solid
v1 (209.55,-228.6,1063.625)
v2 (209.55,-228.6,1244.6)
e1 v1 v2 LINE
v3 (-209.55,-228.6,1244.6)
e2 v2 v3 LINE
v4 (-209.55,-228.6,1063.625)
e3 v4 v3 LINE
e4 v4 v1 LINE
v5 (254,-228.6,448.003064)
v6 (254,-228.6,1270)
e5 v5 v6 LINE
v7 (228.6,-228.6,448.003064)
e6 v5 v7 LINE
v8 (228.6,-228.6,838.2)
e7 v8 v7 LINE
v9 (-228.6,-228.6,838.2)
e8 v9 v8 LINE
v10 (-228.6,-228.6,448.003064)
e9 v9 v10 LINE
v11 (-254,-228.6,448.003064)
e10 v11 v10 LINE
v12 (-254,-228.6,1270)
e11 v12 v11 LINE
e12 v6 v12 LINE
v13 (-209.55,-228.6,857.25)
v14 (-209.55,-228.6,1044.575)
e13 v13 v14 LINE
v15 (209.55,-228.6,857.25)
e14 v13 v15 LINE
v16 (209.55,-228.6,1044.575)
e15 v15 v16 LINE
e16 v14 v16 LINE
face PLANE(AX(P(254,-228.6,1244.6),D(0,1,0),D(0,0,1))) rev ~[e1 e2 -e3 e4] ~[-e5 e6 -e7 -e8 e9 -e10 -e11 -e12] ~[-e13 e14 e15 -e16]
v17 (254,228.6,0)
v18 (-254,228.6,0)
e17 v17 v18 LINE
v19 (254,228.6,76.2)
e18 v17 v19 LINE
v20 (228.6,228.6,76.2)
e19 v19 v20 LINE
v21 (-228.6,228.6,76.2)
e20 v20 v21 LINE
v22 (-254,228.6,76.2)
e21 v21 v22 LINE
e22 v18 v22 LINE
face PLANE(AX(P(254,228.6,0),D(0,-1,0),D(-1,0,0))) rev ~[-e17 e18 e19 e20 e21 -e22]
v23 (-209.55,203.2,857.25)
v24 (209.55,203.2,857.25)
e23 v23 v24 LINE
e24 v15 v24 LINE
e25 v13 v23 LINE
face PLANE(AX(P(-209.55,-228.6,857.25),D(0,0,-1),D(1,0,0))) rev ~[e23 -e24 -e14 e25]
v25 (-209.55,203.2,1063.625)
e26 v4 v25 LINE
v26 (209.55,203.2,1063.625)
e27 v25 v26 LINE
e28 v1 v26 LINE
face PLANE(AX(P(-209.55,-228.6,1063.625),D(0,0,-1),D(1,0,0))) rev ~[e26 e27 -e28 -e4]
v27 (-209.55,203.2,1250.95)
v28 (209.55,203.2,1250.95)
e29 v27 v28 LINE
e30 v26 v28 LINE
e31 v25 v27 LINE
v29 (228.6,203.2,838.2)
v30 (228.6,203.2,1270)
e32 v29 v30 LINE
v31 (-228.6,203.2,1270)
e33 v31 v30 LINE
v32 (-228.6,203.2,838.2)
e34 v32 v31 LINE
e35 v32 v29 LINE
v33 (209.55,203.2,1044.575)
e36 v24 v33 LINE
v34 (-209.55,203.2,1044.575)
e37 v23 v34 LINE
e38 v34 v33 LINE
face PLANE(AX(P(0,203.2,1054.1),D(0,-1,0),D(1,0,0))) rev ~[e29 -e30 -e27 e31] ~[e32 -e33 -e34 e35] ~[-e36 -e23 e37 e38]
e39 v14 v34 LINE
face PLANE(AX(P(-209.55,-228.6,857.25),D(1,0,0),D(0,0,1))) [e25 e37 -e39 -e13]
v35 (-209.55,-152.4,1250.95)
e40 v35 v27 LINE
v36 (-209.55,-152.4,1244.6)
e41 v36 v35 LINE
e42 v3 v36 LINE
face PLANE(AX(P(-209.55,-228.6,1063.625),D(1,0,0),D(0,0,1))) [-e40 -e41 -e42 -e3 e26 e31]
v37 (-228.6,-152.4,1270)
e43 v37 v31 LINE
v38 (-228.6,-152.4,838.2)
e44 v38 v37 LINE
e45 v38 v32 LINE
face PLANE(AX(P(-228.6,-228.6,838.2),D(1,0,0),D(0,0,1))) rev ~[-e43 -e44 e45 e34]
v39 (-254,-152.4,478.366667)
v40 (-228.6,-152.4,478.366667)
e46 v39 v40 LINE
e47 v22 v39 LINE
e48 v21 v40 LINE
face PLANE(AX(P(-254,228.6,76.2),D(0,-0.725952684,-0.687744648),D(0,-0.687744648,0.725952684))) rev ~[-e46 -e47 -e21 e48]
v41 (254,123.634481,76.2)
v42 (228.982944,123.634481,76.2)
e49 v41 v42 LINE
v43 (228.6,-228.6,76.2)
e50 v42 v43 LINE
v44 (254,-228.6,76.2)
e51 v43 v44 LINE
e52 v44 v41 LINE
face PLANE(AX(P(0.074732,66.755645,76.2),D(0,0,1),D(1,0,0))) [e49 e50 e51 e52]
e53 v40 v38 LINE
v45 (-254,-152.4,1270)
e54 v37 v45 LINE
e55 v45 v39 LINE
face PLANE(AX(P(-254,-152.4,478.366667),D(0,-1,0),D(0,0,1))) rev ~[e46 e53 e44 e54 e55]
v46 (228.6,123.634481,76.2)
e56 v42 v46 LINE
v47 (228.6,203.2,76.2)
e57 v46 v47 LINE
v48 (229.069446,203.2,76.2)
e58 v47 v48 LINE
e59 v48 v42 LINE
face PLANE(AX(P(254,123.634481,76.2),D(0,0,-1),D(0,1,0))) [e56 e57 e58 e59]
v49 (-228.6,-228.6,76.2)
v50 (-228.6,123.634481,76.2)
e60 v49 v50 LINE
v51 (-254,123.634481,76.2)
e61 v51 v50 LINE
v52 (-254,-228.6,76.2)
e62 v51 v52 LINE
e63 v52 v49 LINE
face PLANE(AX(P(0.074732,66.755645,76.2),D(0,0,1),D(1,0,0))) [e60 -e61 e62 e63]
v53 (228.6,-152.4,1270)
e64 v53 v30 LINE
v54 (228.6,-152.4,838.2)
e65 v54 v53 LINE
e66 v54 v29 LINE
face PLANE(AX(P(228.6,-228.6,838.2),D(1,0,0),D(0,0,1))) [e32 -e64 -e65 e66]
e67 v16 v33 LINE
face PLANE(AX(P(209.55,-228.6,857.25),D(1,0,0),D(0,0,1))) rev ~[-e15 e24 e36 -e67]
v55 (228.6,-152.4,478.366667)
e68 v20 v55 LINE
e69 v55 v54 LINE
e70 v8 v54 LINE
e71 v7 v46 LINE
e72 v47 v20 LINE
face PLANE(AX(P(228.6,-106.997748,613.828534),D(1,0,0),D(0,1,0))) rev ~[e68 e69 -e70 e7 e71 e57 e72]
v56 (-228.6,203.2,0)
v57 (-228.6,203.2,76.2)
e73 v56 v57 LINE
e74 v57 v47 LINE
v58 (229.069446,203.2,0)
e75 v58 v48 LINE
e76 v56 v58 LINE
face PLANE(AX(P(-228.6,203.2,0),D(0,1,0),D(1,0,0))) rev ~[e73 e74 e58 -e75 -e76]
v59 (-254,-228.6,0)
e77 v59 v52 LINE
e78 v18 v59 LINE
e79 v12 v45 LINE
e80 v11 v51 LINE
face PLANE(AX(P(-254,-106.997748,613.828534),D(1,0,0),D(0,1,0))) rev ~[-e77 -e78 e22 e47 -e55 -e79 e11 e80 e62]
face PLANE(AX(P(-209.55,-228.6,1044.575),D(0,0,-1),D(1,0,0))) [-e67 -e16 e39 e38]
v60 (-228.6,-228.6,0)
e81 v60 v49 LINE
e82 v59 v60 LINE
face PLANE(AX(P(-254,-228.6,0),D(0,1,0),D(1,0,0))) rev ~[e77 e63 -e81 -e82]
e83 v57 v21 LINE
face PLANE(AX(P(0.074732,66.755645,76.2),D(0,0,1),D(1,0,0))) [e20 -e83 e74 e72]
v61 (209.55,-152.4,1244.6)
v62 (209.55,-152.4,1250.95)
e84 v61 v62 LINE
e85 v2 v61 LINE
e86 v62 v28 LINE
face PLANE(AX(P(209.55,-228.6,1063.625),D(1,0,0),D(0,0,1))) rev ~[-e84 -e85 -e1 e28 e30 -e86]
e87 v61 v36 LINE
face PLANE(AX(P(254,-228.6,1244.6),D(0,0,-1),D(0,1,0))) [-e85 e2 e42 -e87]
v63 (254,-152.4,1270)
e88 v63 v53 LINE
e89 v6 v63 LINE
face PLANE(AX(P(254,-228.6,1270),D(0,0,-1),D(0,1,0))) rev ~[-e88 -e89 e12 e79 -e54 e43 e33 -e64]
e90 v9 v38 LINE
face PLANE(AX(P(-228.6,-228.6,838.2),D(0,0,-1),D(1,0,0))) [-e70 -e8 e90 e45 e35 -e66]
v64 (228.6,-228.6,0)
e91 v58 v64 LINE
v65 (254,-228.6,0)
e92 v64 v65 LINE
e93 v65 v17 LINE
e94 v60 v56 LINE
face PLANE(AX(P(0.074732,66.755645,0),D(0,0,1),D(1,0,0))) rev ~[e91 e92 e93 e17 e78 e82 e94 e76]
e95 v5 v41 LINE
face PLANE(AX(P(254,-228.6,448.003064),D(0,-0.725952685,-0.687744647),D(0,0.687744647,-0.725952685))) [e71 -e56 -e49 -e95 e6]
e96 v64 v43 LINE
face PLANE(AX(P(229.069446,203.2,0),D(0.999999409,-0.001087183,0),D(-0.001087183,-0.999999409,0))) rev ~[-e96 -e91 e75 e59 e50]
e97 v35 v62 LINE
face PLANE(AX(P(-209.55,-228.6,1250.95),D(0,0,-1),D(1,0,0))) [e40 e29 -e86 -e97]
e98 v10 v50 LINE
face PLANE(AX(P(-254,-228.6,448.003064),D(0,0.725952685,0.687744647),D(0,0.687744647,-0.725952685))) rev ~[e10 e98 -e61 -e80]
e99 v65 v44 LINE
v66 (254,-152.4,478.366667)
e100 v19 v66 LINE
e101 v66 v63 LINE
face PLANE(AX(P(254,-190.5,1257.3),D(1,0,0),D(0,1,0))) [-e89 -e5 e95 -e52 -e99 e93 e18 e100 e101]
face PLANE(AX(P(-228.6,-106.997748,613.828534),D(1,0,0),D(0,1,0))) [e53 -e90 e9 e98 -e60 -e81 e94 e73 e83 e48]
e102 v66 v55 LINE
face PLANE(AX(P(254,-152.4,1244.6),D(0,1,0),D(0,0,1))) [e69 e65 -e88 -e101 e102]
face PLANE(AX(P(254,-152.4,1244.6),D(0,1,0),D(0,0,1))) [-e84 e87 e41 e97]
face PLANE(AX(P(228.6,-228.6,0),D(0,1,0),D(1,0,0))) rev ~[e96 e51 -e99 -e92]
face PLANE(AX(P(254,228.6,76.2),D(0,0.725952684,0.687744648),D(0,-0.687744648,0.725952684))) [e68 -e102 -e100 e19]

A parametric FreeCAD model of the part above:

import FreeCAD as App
import Part
import Sketcher
Q = App.Units.Quantity

doc = App.newDocument("Part")
body = doc.addObject("PartDesign::Body", "Body")

# Sketch on XY plane
sketch1 = doc.addObject("Sketcher::SketchObject", "Sketch")
body.addObject(sketch1)
sketch1.AttachmentSupport = (doc.XY_Plane, [""])
sketch1.MapMode = "FlatFace"
sketch1.addGeometry(Part.LineSegment(App.Vector(229, -229, 0), App.Vector(254, -229, 0)), False)
sketch1.addGeometry(Part.LineSegment(App.Vector(254, -229, 0), App.Vector(254, 229, 0)), False)
sketch1.addGeometry(Part.LineSegment(App.Vector(254, 229, 0), App.Vector(-254, 229, 0)), False)
sketch1.addGeometry(Part.LineSegment(App.Vector(-254, 229, 0), App.Vector(-254, -229, 0)), False)
sketch1.addGeometry(Part.LineSegment(App.Vector(-254, -229, 0), App.Vector(-229, -229, 0)), False)
sketch1.addGeometry(Part.LineSegment(App.Vector(-229, -229, 0), App.Vector(-229, 203, 0)), False)
sketch1.addGeometry(Part.LineSegment(App.Vector(-229, 203, 0), App.Vector(229, 203, 0)), False)
sketch1.addGeometry(Part.LineSegment(App.Vector(229, 203, 0), App.Vector(229, -229, 0)), False)
sketch1.addConstraint(Sketcher.Constraint("Coincident", 0, 2, 1, 1))
sketch1.addConstraint(Sketcher.Constraint("Coincident", 1, 2, 2, 1))
sketch1.addConstraint(Sketcher.Constraint("Coincident", 2, 2, 3, 1))
sketch1.addConstraint(Sketcher.Constraint("Coincident", 3, 2, 4, 1))
sketch1.addConstraint(Sketcher.Constraint("Coincident", 4, 2, 5, 1))
sketch1.addConstraint(Sketcher.Constraint("Coincident", 5, 2, 6, 1))
sketch1.addConstraint(Sketcher.Constraint("Coincident", 6, 2, 7, 1))
sketch1.addConstraint(Sketcher.Constraint("Coincident", 7, 2, 0, 1))
sketch1.addConstraint(Sketcher.Constraint("Horizontal", 0))
sketch1.addConstraint(Sketcher.Constraint("Vertical", 1))
sketch1.addConstraint(Sketcher.Constraint("Horizontal", 2))
sketch1.addConstraint(Sketcher.Constraint("Vertical", 3))
sketch1.addConstraint(Sketcher.Constraint("Horizontal", 4))
sketch1.addConstraint(Sketcher.Constraint("Vertical", 5))
sketch1.addConstraint(Sketcher.Constraint("Horizontal", 6))
sketch1.addConstraint(Sketcher.Constraint("Symmetric", 0, 2, 2, 2, -1, 1))
sketch1.addConstraint(Sketcher.Constraint("Symmetric", 4, 2, 7, 2, -2))
sketch1.addConstraint(Sketcher.Constraint("DistanceX", 0, 1, 0, 2, Q("1 in")))
sketch1.addConstraint(Sketcher.Constraint("DistanceX", 2, 2, 2, 1, Q("20 in")))
sketch1.addConstraint(Sketcher.Constraint("DistanceY", 1, 1, 1, 2, Q("18 in")))
sketch1.addConstraint(Sketcher.Constraint("DistanceY", 5, 1, 5, 2, Q("17 in")))
sketch1.addConstraint(Sketcher.Constraint("DistanceX", 6, 1, 6, 2, Q("457.669446 mm")))
pad1 = doc.addObject("PartDesign::Pad", "Pad")
body.addObject(pad1)
pad1.Profile = sketch1
pad1.Length = Q("3 in")

# Sketch on YZ plane
sketch2 = doc.addObject("Sketcher::SketchObject", "Sketch001")
body.addObject(sketch2)
sketch2.AttachmentSupport = (doc.YZ_Plane, [""])
sketch2.MapMode = "FlatFace"
sketch2.AttachmentOffset = App.Placement(App.Vector(0, 0, 10 * 25.4), App.Rotation())
sketch2.addGeometry(Part.LineSegment(App.Vector(124, 76, 0), App.Vector(229, 76, 0)), False)
sketch2.addGeometry(Part.LineSegment(App.Vector(229, 76, 0), App.Vector(-152, 478, 0)), False)
sketch2.addGeometry(Part.LineSegment(App.Vector(-152, 478, 0), App.Vector(-152, 1245, 0)), False)
sketch2.addGeometry(Part.LineSegment(App.Vector(-152, 1245, 0), App.Vector(-229, 1245, 0)), False)
sketch2.addGeometry(Part.LineSegment(App.Vector(-229, 1245, 0), App.Vector(-229, 448, 0)), False)
sketch2.addGeometry(Part.LineSegment(App.Vector(-229, 448, 0), App.Vector(124, 76, 0)), False)
sketch2.addConstraint(Sketcher.Constraint("Coincident", 0, 2, 1, 1))
sketch2.addConstraint(Sketcher.Constraint("Coincident", 1, 2, 2, 1))
sketch2.addConstraint(Sketcher.Constraint("Coincident", 2, 2, 3, 1))
sketch2.addConstraint(Sketcher.Constraint("Coincident", 3, 2, 4, 1))
sketch2.addConstraint(Sketcher.Constraint("Coincident", 4, 2, 5, 1))
sketch2.addConstraint(Sketcher.Constraint("Coincident", 5, 2, 0, 1))
sketch2.addConstraint(Sketcher.Constraint("Horizontal", 0))
sketch2.addConstraint(Sketcher.Constraint("Vertical", 2))
sketch2.addConstraint(Sketcher.Constraint("Horizontal", 3))
sketch2.addConstraint(Sketcher.Constraint("Vertical", 4))
sketch2.addConstraint(Sketcher.Constraint("Parallel", 1, 5))
sketch2.addConstraint(Sketcher.Constraint("DistanceX", 3, 2, 3, 1, Q("3 in")))
sketch2.addConstraint(Sketcher.Constraint("DistanceX", -1, 1, 0, 2, Q("9 in")))
sketch2.addConstraint(Sketcher.Constraint("DistanceY", -1, 1, 0, 2, Q("3 in")))
sketch2.addConstraint(Sketcher.Constraint("DistanceX", 1, 2, -1, 1, Q("6 in")))
sketch2.addConstraint(Sketcher.Constraint("DistanceY", -1, 1, 2, 2, Q("49 in")))
sketch2.addConstraint(Sketcher.Constraint("DistanceX", 0, 1, 0, 2, Q("104.965519 mm")))
sketch2.addConstraint(Sketcher.Constraint("Distance", 5, Q("512.158811 mm")))
pad2 = doc.addObject("PartDesign::Pad", "Pad001")
body.addObject(pad2)
pad2.Profile = sketch2
pad2.Length = Q("1 in")
pad2.Reversed = True

# Sketch on YZ plane
sketch3 = doc.addObject("Sketcher::SketchObject", "Sketch002")
body.addObject(sketch3)
sketch3.AttachmentSupport = (doc.YZ_Plane, [""])
sketch3.MapMode = "FlatFace"
sketch3.AttachmentOffset = App.Placement(App.Vector(0, 0, -10 * 25.4), App.Rotation())
sketch3.addGeometry(Part.LineSegment(App.Vector(124, 76, 0), App.Vector(229, 76, 0)), False)
sketch3.addGeometry(Part.LineSegment(App.Vector(229, 76, 0), App.Vector(-152, 478, 0)), False)
sketch3.addGeometry(Part.LineSegment(App.Vector(-152, 478, 0), App.Vector(-152, 1245, 0)), False)
sketch3.addGeometry(Part.LineSegment(App.Vector(-152, 1245, 0), App.Vector(-229, 1245, 0)), False)
sketch3.addGeometry(Part.LineSegment(App.Vector(-229, 1245, 0), App.Vector(-229, 448, 0)), False)
sketch3.addGeometry(Part.LineSegment(App.Vector(-229, 448, 0), App.Vector(124, 76, 0)), False)
sketch3.addConstraint(Sketcher.Constraint("Coincident", 0, 2, 1, 1))
sketch3.addConstraint(Sketcher.Constraint("Coincident", 1, 2, 2, 1))
sketch3.addConstraint(Sketcher.Constraint("Coincident", 2, 2, 3, 1))
sketch3.addConstraint(Sketcher.Constraint("Coincident", 3, 2, 4, 1))
sketch3.addConstraint(Sketcher.Constraint("Coincident", 4, 2, 5, 1))
sketch3.addConstraint(Sketcher.Constraint("Coincident", 5, 2, 0, 1))
sketch3.addConstraint(Sketcher.Constraint("Horizontal", 0))
sketch3.addConstraint(Sketcher.Constraint("Vertical", 2))
sketch3.addConstraint(Sketcher.Constraint("Horizontal", 3))
sketch3.addConstraint(Sketcher.Constraint("Vertical", 4))
sketch3.addConstraint(Sketcher.Constraint("Parallel", 1, 5))
sketch3.addConstraint(Sketcher.Constraint("DistanceX", 3, 2, 3, 1, Q("3 in")))
sketch3.addConstraint(Sketcher.Constraint("DistanceX", -1, 1, 0, 2, Q("9 in")))
sketch3.addConstraint(Sketcher.Constraint("DistanceY", -1, 1, 0, 2, Q("3 in")))
sketch3.addConstraint(Sketcher.Constraint("DistanceX", 1, 2, -1, 1, Q("6 in")))
sketch3.addConstraint(Sketcher.Constraint("DistanceY", -1, 1, 2, 2, Q("49 in")))
sketch3.addConstraint(Sketcher.Constraint("DistanceX", 0, 1, 0, 2, Q("104.965519 mm")))
sketch3.addConstraint(Sketcher.Constraint("Distance", 5, Q("512.158811 mm")))
pad3 = doc.addObject("PartDesign::Pad", "Pad002")
body.addObject(pad3)
pad3.Profile = sketch3
pad3.Length = Q("1 in")

# Sketch on XZ plane
sketch4 = doc.addObject("Sketcher::SketchObject", "Sketch003")
body.addObject(sketch4)
sketch4.AttachmentSupport = (doc.XZ_Plane, [""])
sketch4.MapMode = "FlatFace"
sketch4.AttachmentOffset = App.Placement(App.Vector(0, 0, 9 * 25.4), App.Rotation())
sketch4.addGeometry(Part.LineSegment(App.Vector(-229, 1270, 0), App.Vector(-229, 838, 0)), False)
sketch4.addGeometry(Part.LineSegment(App.Vector(-229, 838, 0), App.Vector(229, 838, 0)), False)
sketch4.addGeometry(Part.LineSegment(App.Vector(229, 838, 0), App.Vector(229, 1270, 0)), False)
sketch4.addGeometry(Part.LineSegment(App.Vector(229, 1270, 0), App.Vector(-229, 1270, 0)), False)
sketch4.addGeometry(Part.LineSegment(App.Vector(210, 857, 0), App.Vector(-210, 857, 0)), False)
sketch4.addGeometry(Part.LineSegment(App.Vector(-210, 857, 0), App.Vector(-210, 1045, 0)), False)
sketch4.addGeometry(Part.LineSegment(App.Vector(-210, 1045, 0), App.Vector(210, 1045, 0)), False)
sketch4.addGeometry(Part.LineSegment(App.Vector(210, 1045, 0), App.Vector(210, 857, 0)), False)
sketch4.addGeometry(Part.LineSegment(App.Vector(210, 1064, 0), App.Vector(-210, 1064, 0)), False)
sketch4.addGeometry(Part.LineSegment(App.Vector(-210, 1064, 0), App.Vector(-210, 1251, 0)), False)
sketch4.addGeometry(Part.LineSegment(App.Vector(-210, 1251, 0), App.Vector(210, 1251, 0)), False)
sketch4.addGeometry(Part.LineSegment(App.Vector(210, 1251, 0), App.Vector(210, 1064, 0)), False)
sketch4.addConstraint(Sketcher.Constraint("Coincident", 0, 2, 1, 1))
sketch4.addConstraint(Sketcher.Constraint("Coincident", 1, 2, 2, 1))
sketch4.addConstraint(Sketcher.Constraint("Coincident", 2, 2, 3, 1))
sketch4.addConstraint(Sketcher.Constraint("Coincident", 3, 2, 0, 1))
sketch4.addConstraint(Sketcher.Constraint("Coincident", 4, 2, 5, 1))
sketch4.addConstraint(Sketcher.Constraint("Coincident", 5, 2, 6, 1))
sketch4.addConstraint(Sketcher.Constraint("Coincident", 6, 2, 7, 1))
sketch4.addConstraint(Sketcher.Constraint("Coincident", 7, 2, 4, 1))
sketch4.addConstraint(Sketcher.Constraint("Coincident", 8, 2, 9, 1))
sketch4.addConstraint(Sketcher.Constraint("Coincident", 9, 2, 10, 1))
sketch4.addConstraint(Sketcher.Constraint("Coincident", 10, 2, 11, 1))
sketch4.addConstraint(Sketcher.Constraint("Coincident", 11, 2, 8, 1))
sketch4.addConstraint(Sketcher.Constraint("Vertical", 0))
sketch4.addConstraint(Sketcher.Constraint("Horizontal", 1))
sketch4.addConstraint(Sketcher.Constraint("Vertical", 2))
sketch4.addConstraint(Sketcher.Constraint("Horizontal", 3))
sketch4.addConstraint(Sketcher.Constraint("Horizontal", 4))
sketch4.addConstraint(Sketcher.Constraint("Vertical", 5))
sketch4.addConstraint(Sketcher.Constraint("Horizontal", 6))
sketch4.addConstraint(Sketcher.Constraint("Vertical", 7))
sketch4.addConstraint(Sketcher.Constraint("Horizontal", 8))
sketch4.addConstraint(Sketcher.Constraint("Vertical", 9))
sketch4.addConstraint(Sketcher.Constraint("Horizontal", 10))
sketch4.addConstraint(Sketcher.Constraint("Vertical", 11))
sketch4.addConstraint(Sketcher.Constraint("Vertical", 5, 2, 8, 2))
sketch4.addConstraint(Sketcher.Constraint("Vertical", 7, 2, 10, 2))
sketch4.addConstraint(Sketcher.Constraint("Equal", 7, 9))
sketch4.addConstraint(Sketcher.Constraint("DistanceX", 1, 1, 1, 2, Q("18 in")))
sketch4.addConstraint(Sketcher.Constraint("DistanceY", 0, 2, 0, 1, Q("17 in")))
sketch4.addConstraint(Sketcher.Constraint("DistanceX", 4, 2, 4, 1, Q("16.5 in")))
sketch4.addConstraint(Sketcher.Constraint("DistanceX", 0, 2, -1, 1, Q("9 in")))
sketch4.addConstraint(Sketcher.Constraint("DistanceY", -1, 1, 0, 2, Q("33 in")))
sketch4.addConstraint(Sketcher.Constraint("DistanceY", 4, 2, 9, 2, Q("15.5 in")))
sketch4.addConstraint(Sketcher.Constraint("DistanceY", 5, 1, 5, 2, Q("7.375 in")))
sketch4.addConstraint(Sketcher.Constraint("DistanceX", 4, 2, -1, 1, Q("8.25 in")))
sketch4.addConstraint(Sketcher.Constraint("DistanceY", -1, 1, 4, 2, Q("33.75 in")))
pad4 = doc.addObject("PartDesign::Pad", "Pad003")
body.addObject(pad4)
pad4.Profile = sketch4
pad4.Length = Q("17 in")
pad4.Reversed = True

# Sketch on YZ plane
sketch5 = doc.addObject("Sketcher::SketchObject", "Sketch004")
body.addObject(sketch5)
sketch5.AttachmentSupport = (doc.YZ_Plane, [""])
sketch5.MapMode = "FlatFace"
sketch5.AttachmentOffset = App.Placement(App.Vector(0, 0, 10 * 25.4), App.Rotation())
sketch5.addGeometry(Part.LineSegment(App.Vector(-229, 1270, 0), App.Vector(-229, 1245, 0)), False)
sketch5.addGeometry(Part.LineSegment(App.Vector(-229, 1245, 0), App.Vector(-152, 1245, 0)), False)
sketch5.addGeometry(Part.LineSegment(App.Vector(-152, 1245, 0), App.Vector(-152, 1270, 0)), False)
sketch5.addGeometry(Part.LineSegment(App.Vector(-152, 1270, 0), App.Vector(-229, 1270, 0)), False)
sketch5.addConstraint(Sketcher.Constraint("Coincident", 0, 2, 1, 1))
sketch5.addConstraint(Sketcher.Constraint("Coincident", 1, 2, 2, 1))
sketch5.addConstraint(Sketcher.Constraint("Coincident", 2, 2, 3, 1))
sketch5.addConstraint(Sketcher.Constraint("Coincident", 3, 2, 0, 1))
sketch5.addConstraint(Sketcher.Constraint("Vertical", 0))
sketch5.addConstraint(Sketcher.Constraint("Horizontal", 1))
sketch5.addConstraint(Sketcher.Constraint("Vertical", 2))
sketch5.addConstraint(Sketcher.Constraint("Horizontal", 3))
sketch5.addConstraint(Sketcher.Constraint("DistanceX", 1, 1, 1, 2, Q("3 in")))
sketch5.addConstraint(Sketcher.Constraint("DistanceY", 0, 2, 0, 1, Q("1 in")))
sketch5.addConstraint(Sketcher.Constraint("DistanceX", 0, 2, -1, 1, Q("9 in")))
sketch5.addConstraint(Sketcher.Constraint("DistanceY", -1, 1, 0, 2, Q("49 in")))
pad5 = doc.addObject("PartDesign::Pad", "Pad004")
body.addObject(pad5)
pad5.Profile = sketch5
pad5.Length = Q("20 in")
pad5.Reversed = True

doc.recompute()
